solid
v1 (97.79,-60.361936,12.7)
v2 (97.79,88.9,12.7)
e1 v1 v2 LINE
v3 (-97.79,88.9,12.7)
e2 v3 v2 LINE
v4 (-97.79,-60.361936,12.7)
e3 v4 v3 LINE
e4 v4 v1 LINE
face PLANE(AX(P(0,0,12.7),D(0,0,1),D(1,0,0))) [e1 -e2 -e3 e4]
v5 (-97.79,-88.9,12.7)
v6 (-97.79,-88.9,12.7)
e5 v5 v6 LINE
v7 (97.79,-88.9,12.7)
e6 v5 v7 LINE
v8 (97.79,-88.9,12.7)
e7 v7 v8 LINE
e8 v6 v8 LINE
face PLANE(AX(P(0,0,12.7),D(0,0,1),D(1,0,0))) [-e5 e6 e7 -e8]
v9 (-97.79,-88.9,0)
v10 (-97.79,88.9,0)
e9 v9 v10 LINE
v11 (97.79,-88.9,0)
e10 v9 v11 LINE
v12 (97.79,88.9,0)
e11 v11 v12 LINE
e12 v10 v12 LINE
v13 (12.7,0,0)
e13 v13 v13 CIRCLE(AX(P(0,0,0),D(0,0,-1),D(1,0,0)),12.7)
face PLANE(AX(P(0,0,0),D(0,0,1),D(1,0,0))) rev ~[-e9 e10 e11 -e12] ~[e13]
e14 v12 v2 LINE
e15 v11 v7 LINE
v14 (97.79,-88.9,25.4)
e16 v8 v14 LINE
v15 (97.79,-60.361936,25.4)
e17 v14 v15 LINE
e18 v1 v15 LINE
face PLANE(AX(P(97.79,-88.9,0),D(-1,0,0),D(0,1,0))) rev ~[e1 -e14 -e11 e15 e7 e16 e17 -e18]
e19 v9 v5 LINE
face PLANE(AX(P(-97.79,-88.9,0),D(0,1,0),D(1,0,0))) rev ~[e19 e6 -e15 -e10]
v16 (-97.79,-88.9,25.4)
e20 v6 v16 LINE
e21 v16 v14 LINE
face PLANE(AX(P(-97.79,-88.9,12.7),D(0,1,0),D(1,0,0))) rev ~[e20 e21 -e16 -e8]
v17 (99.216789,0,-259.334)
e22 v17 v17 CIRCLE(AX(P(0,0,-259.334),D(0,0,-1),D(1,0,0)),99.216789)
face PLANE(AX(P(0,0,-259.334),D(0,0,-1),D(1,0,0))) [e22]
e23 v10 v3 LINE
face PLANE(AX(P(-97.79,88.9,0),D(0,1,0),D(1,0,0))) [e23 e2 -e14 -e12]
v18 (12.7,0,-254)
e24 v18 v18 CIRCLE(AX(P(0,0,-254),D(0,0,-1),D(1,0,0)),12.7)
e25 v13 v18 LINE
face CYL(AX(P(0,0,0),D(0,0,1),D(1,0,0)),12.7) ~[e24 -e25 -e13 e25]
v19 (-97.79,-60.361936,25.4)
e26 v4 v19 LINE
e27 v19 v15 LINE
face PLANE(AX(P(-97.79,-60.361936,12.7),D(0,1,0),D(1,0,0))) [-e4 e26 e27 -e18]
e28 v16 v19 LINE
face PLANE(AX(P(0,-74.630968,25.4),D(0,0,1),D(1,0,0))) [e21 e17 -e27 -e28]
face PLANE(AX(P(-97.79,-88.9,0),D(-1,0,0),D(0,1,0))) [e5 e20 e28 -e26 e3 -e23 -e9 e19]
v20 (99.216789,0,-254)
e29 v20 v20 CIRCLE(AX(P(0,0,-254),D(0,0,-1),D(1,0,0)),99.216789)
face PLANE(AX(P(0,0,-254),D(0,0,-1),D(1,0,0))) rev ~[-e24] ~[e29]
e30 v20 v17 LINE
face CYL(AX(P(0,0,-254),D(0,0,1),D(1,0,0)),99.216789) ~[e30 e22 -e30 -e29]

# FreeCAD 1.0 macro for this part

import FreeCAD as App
import Part
import Sketcher

V = App.Vector
Q = App.Units.Quantity

doc = App.newDocument("Part")
body = doc.addObject("PartDesign::Body", "Body")

# Sketch on XY plane
sketch1 = doc.addObject("Sketcher::SketchObject", "Sketch")
body.addObject(sketch1)
sketch1.AttachmentSupport = (doc.XY_Plane, [""])
sketch1.MapMode = "FlatFace"
sketch1.addGeometry(Part.LineSegment(V(-97.79, 88.9, 0), V(-97.79, -88.9, 0)), False)
sketch1.addGeometry(Part.LineSegment(V(-97.79, -88.9, 0), V(97.79, -88.9, 0)), False)
sketch1.addGeometry(Part.LineSegment(V(97.79, -88.9, 0), V(97.79, 88.9, 0)), False)
sketch1.addGeometry(Part.LineSegment(V(97.79, 88.9, 0), V(-97.79, 88.9, 0)), False)
sketch1.addConstraint(Sketcher.Constraint("Coincident", 0, 2, 1, 1))
sketch1.addConstraint(Sketcher.Constraint("Coincident", 1, 2, 2, 1))
sketch1.addConstraint(Sketcher.Constraint("Coincident", 2, 2, 3, 1))
sketch1.addConstraint(Sketcher.Constraint("Coincident", 3, 2, 0, 1))
sketch1.addConstraint(Sketcher.Constraint("Vertical", 0))
sketch1.addConstraint(Sketcher.Constraint("Horizontal", 1))
sketch1.addConstraint(Sketcher.Constraint("Vertical", 2))
sketch1.addConstraint(Sketcher.Constraint("Horizontal", 3))
sketch1.addConstraint(Sketcher.Constraint("Symmetric", 0, 2, 2, 2, -1, 1))
sketch1.addConstraint(Sketcher.Constraint("DistanceY", 0, 2, 0, 1, Q("7 in")))
sketch1.addConstraint(Sketcher.Constraint("DistanceX", 1, 1, 1, 2, Q("7.7 in")))
pad1 = doc.addObject("PartDesign::Pad", "Pad")
body.addObject(pad1)
pad1.Profile = sketch1
pad1.Length = Q("0.5 in")

# Sketch on XY plane
sketch2 = doc.addObject("Sketcher::SketchObject", "Sketch001")
body.addObject(sketch2)
sketch2.AttachmentSupport = (doc.XY_Plane, [""])
sketch2.MapMode = "FlatFace"
sketch2.addGeometry(Part.Circle(V(0, 0, 0), V(0, 0, 1), 12.7), False)
sketch2.addConstraint(Sketcher.Constraint("Coincident", 0, 3, -1, 1))
sketch2.addConstraint(Sketcher.Constraint("Diameter", 0, Q("1 in")))
pad2 = doc.addObject("PartDesign::Pad", "Pad001")
body.addObject(pad2)
pad2.Profile = sketch2
pad2.Length = Q("10 in")
pad2.Reversed = True

# Sketch on XY plane
sketch3 = doc.addObject("Sketcher::SketchObject", "Sketch002")
body.addObject(sketch3)
sketch3.AttachmentSupport = (doc.XY_Plane, [""])
sketch3.MapMode = "FlatFace"
sketch3.AttachmentOffset = App.Placement(V(0, 0, -10 * 25.4), App.Rotation())
sketch3.addGeometry(Part.Circle(V(0, 0, 0), V(0, 0, 1), 99.216789), False)
sketch3.addConstraint(Sketcher.Constraint("Coincident", 0, 3, -1, 1))
sketch3.addConstraint(Sketcher.Constraint("Diameter", 0, Q("198.433578 mm")))
pad3 = doc.addObject("PartDesign::Pad", "Pad002")
body.addObject(pad3)
pad3.Profile = sketch3
pad3.Length = Q("0.21 in")
pad3.Reversed = True

# Sketch on XY plane
sketch4 = doc.addObject("Sketcher::SketchObject", "Sketch003")
body.addObject(sketch4)
sketch4.AttachmentSupport = (doc.XY_Plane, [""])
sketch4.MapMode = "FlatFace"
sketch4.AttachmentOffset = App.Placement(V(0, 0, 0.5 * 25.4), App.Rotation())
sketch4.addGeometry(Part.LineSegment(V(-97.79, -60.361936, 0), V(-97.79, -88.9, 0)), False)
sketch4.addGeometry(Part.LineSegment(V(-97.79, -88.9, 0), V(97.79, -88.9, 0)), False)
sketch4.addGeometry(Part.LineSegment(V(97.79, -88.9, 0), V(97.79, -60.361936, 0)), False)
sketch4.addGeometry(Part.LineSegment(V(97.79, -60.361936, 0), V(-97.79, -60.361936, 0)), False)
sketch4.addConstraint(Sketcher.Constraint("Coincident", 0, 2, 1, 1))
sketch4.addConstraint(Sketcher.Constraint("Coincident", 1, 2, 2, 1))
sketch4.addConstraint(Sketcher.Constraint("Coincident", 2, 2, 3, 1))
sketch4.addConstraint(Sketcher.Constraint("Coincident", 3, 2, 0, 1))
sketch4.addConstraint(Sketcher.Constraint("Vertical", 0))
sketch4.addConstraint(Sketcher.Constraint("Horizontal", 1))
sketch4.addConstraint(Sketcher.Constraint("Vertical", 2))
sketch4.addConstraint(Sketcher.Constraint("Horizontal", 3))
sketch4.addConstraint(Sketcher.Constraint("DistanceX", 1, 1, 1, 2, Q("7.7 in")))
sketch4.addConstraint(Sketcher.Constraint("DistanceY", 0, 2, -1, 1, Q("3.5 in")))
sketch4.addConstraint(Sketcher.Constraint("DistanceX", 0, 2, -1, 1, Q("3.85 in")))
sketch4.addConstraint(Sketcher.Constraint("DistanceY", 0, 2, 0, 1, Q("28.538063 mm")))
pad4 = doc.addObject("PartDesign::Pad", "Pad003")
body.addObject(pad4)
pad4.Profile = sketch4
pad4.Length = Q("0.5 in")

doc.recompute()
